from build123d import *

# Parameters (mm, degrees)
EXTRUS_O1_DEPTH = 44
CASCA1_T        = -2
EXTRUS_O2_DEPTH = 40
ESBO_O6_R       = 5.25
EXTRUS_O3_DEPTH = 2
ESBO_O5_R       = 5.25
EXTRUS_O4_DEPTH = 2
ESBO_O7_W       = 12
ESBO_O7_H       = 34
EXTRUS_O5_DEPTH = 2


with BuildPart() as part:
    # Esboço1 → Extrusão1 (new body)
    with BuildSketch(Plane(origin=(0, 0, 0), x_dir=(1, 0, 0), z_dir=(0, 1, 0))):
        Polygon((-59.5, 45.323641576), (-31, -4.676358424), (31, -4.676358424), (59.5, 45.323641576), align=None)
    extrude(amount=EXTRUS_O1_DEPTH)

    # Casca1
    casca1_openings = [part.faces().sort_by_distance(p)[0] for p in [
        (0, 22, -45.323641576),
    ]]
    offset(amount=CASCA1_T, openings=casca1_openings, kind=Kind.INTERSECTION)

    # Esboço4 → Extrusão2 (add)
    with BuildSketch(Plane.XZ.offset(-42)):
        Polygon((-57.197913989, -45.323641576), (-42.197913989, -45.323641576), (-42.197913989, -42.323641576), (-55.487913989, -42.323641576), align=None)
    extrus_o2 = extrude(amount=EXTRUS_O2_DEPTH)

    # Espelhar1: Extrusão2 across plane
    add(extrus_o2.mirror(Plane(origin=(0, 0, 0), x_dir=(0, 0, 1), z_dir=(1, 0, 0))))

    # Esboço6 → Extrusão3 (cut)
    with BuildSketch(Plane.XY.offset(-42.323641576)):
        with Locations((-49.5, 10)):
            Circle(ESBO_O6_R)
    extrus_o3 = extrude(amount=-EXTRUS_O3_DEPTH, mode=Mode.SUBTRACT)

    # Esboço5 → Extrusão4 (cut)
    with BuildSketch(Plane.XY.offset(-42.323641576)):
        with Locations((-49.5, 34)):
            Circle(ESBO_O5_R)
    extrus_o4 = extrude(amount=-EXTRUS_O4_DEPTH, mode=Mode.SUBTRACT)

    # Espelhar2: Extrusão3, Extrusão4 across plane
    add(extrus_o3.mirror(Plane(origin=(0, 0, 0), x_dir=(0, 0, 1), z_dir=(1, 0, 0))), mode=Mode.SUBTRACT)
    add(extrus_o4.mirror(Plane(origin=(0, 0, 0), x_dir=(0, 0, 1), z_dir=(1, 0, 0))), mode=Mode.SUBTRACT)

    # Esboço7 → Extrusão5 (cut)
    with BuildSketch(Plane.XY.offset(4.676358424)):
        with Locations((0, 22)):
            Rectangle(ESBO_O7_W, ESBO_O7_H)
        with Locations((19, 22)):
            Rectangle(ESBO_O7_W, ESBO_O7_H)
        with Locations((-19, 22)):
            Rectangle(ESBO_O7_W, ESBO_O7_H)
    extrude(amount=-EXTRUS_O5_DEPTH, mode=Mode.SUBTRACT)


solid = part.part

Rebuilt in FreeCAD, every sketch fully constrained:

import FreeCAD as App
import Part
import Sketcher


def faces_at(feature, points):
    """Names of the faces that lie closest to the given points."""
    faces = feature.Shape.Faces
    near = lambda p: min(range(len(faces)), key=lambda i: faces[i].distToShape(Part.Vertex(*p))[0])
    return sorted({f"Face{near(p) + 1}" for p in points})


def add_polygon(sketch, points):
    """Adds a closed chain of lines whose ends are joined by coincident constraints."""
    first, n = sketch.GeometryCount, len(points)
    for a, b in zip(points, points[1:] + points[:1]):
        sketch.addGeometry(Part.LineSegment(App.Vector(*a, 0), App.Vector(*b, 0)), False)
    for i in range(n):
        sketch.addConstraint(Sketcher.Constraint("Coincident", first + i, 2, first + (i + 1) % n, 1))

doc = App.newDocument("Part")
body = doc.addObject("PartDesign::Body", "Body")

sketch1 = body.newObject("Sketcher::SketchObject", "Sketch")
sketch1.AttachmentSupport = (doc.getObject("XZ_Plane"), [""])
sketch1.MapMode = "FlatFace"
add_polygon(sketch1, [(-60, -45), (-31, 5), (31, 5), (60, -45)])
sketch1.addConstraint(Sketcher.Constraint("Horizontal", 1))
sketch1.addConstraint(Sketcher.Constraint("Horizontal", 3))
sketch1.addConstraint(Sketcher.Constraint("Equal", 0, 2))
sketch1.addConstraint(Sketcher.Constraint("DistanceX", 1, 1, 1, 2, 62.0))
sketch1.addConstraint(Sketcher.Constraint("DistanceX", 3, 2, 3, 1, 119.0))
sketch1.addConstraint(Sketcher.Constraint("DistanceX", 0, 2, -1, 1, 31.0))
sketch1.addConstraint(Sketcher.Constraint("DistanceY", 2, 2, 1, 2, 50.0))
sketch1.addConstraint(Sketcher.Constraint("DistanceY", -1, 1, 0, 2, 4.676358))
pad1 = body.newObject("PartDesign::Pad", "Pad")
pad1.Profile = sketch1
pad1.Length = 44
pad1.Reversed = True
doc.recompute()

thickness = body.newObject("PartDesign::Thickness", "Thickness")
thickness.Base = (pad1, faces_at(pad1, [(0, 22, -45.324)]))
thickness.Value = 2
thickness.Reversed = True
thickness.Join = "Intersection"

sketch2 = body.newObject("Sketcher::SketchObject", "Sketch001")
sketch2.AttachmentSupport = (doc.getObject("XZ_Plane"), [""])
sketch2.MapMode = "FlatFace"
sketch2.AttachmentOffset = App.Placement(App.Vector(0, 0, -42), App.Rotation())
add_polygon(sketch2, [(-57.2, -45.3), (-42.2, -45.3), (-42.2, -42.3), (-55.5, -42.3)])
sketch2.addConstraint(Sketcher.Constraint("Horizontal", 0))
sketch2.addConstraint(Sketcher.Constraint("Vertical", 1))
sketch2.addConstraint(Sketcher.Constraint("Horizontal", 2))
sketch2.addConstraint(Sketcher.Constraint("DistanceX", 0, 1, 0, 2, 15.0))
sketch2.addConstraint(Sketcher.Constraint("DistanceY", 1, 1, 1, 2, 3.0))
sketch2.addConstraint(Sketcher.Constraint("DistanceX", 2, 2, 2, 1, 13.29))
sketch2.addConstraint(Sketcher.Constraint("DistanceY", 0, 2, -1, 1, 45.323642))
sketch2.addConstraint(Sketcher.Constraint("DistanceX", 0, 2, -1, 1, 42.197914))
pad2 = body.newObject("PartDesign::Pad", "Pad001")
pad2.Profile = sketch2
pad2.Length = 40
doc.recompute()

mirrored = body.newObject("PartDesign::Mirrored", "Mirrored")
mirrored.Originals = [pad2]
mirrored.MirrorPlane = (doc.getObject("YZ_Plane"), [""])
body.Tip = mirrored

sketch3 = body.newObject("Sketcher::SketchObject", "Sketch002")
sketch3.AttachmentSupport = (doc.getObject("XY_Plane"), [""])
sketch3.MapMode = "FlatFace"
sketch3.AttachmentOffset = App.Placement(App.Vector(0, 0, -42.323642), App.Rotation())
sketch3.addGeometry(Part.Circle(App.Vector(-50, 10, 0), App.Vector(0, 0, 1), 5), False)
sketch3.addConstraint(Sketcher.Constraint("Diameter", 0, 10.5))
sketch3.addConstraint(Sketcher.Constraint("DistanceY", -1, 1, 0, 3, 10.0))
sketch3.addConstraint(Sketcher.Constraint("DistanceX", 0, 3, -1, 1, 49.5))
pocket1 = body.newObject("PartDesign::Pocket", "Pocket")
pocket1.Profile = sketch3
pocket1.Length = 2

sketch4 = body.newObject("Sketcher::SketchObject", "Sketch003")
sketch4.AttachmentSupport = (doc.getObject("XY_Plane"), [""])
sketch4.MapMode = "FlatFace"
sketch4.AttachmentOffset = App.Placement(App.Vector(0, 0, -42.323642), App.Rotation())
sketch4.addGeometry(Part.Circle(App.Vector(-50, 34, 0), App.Vector(0, 0, 1), 5), False)
sketch4.addConstraint(Sketcher.Constraint("Diameter", 0, 10.5))
sketch4.addConstraint(Sketcher.Constraint("DistanceY", -1, 1, 0, 3, 34.0))
sketch4.addConstraint(Sketcher.Constraint("DistanceX", 0, 3, -1, 1, 49.5))
pocket2 = body.newObject("PartDesign::Pocket", "Pocket001")
pocket2.Profile = sketch4
pocket2.Length = 2
doc.recompute()

mirrored2 = body.newObject("PartDesign::Mirrored", "Mirrored001")
mirrored2.Originals = [pocket1, pocket2]
mirrored2.MirrorPlane = (doc.getObject("YZ_Plane"), [""])
body.Tip = mirrored2

sketch5 = body.newObject("Sketcher::SketchObject", "Sketch004")
sketch5.AttachmentSupport = (doc.getObject("XY_Plane"), [""])
sketch5.MapMode = "FlatFace"
sketch5.AttachmentOffset = App.Placement(App.Vector(0, 0, 4.676358), App.Rotation())
add_polygon(sketch5, [(-6, 39), (-6, 5), (6, 5), (6, 39)])
add_polygon(sketch5, [(13, 39), (13, 5), (25, 5), (25, 39)])
add_polygon(sketch5, [(-25, 39), (-25, 5), (-13, 5), (-13, 39)])
sketch5.addConstraint(Sketcher.Constraint("Vertical", 0))
sketch5.addConstraint(Sketcher.Constraint("Horizontal", 1))
sketch5.addConstraint(Sketcher.Constraint("Vertical", 2))
sketch5.addConstraint(Sketcher.Constraint("Horizontal", 3))
sketch5.addConstraint(Sketcher.Constraint("Vertical", 4))
sketch5.addConstraint(Sketcher.Constraint("Horizontal", 5))
sketch5.addConstraint(Sketcher.Constraint("Vertical", 6))
sketch5.addConstraint(Sketcher.Constraint("Horizontal", 7))
sketch5.addConstraint(Sketcher.Constraint("Vertical", 8))
sketch5.addConstraint(Sketcher.Constraint("Horizontal", 9))
sketch5.addConstraint(Sketcher.Constraint("Vertical", 10))
sketch5.addConstraint(Sketcher.Constraint("Horizontal", 11))
sketch5.addConstraint(Sketcher.Constraint("Symmetric", 5, 2, 8, 2, -2))
sketch5.addConstraint(Sketcher.Constraint("Symmetric", 7, 2, 10, 2, -2))
sketch5.addConstraint(Sketcher.Constraint("Horizontal", 1, 2, 4, 2))
sketch5.addConstraint(Sketcher.Constraint("Horizontal", 3, 2, 6, 2))
sketch5.addConstraint(Sketcher.Constraint("Equal", 3, 5))
sketch5.addConstraint(Sketcher.Constraint("DistanceX", 1, 1, 1, 2, 12.0))
sketch5.addConstraint(Sketcher.Constraint("DistanceY", 0, 2, 0, 1, 34.0))
sketch5.addConstraint(Sketcher.Constraint("DistanceX", 0, 2, -1, 1, 6.0))
sketch5.addConstraint(Sketcher.Constraint("DistanceY", -1, 1, 0, 2, 5.0))
sketch5.addConstraint(Sketcher.Constraint("DistanceX", -1, 1, 4, 2, 13.0))
pocket3 = body.newObject("PartDesign::Pocket", "Pocket002")
pocket3.Profile = sketch5
pocket3.Length = 2

doc.recompute()
